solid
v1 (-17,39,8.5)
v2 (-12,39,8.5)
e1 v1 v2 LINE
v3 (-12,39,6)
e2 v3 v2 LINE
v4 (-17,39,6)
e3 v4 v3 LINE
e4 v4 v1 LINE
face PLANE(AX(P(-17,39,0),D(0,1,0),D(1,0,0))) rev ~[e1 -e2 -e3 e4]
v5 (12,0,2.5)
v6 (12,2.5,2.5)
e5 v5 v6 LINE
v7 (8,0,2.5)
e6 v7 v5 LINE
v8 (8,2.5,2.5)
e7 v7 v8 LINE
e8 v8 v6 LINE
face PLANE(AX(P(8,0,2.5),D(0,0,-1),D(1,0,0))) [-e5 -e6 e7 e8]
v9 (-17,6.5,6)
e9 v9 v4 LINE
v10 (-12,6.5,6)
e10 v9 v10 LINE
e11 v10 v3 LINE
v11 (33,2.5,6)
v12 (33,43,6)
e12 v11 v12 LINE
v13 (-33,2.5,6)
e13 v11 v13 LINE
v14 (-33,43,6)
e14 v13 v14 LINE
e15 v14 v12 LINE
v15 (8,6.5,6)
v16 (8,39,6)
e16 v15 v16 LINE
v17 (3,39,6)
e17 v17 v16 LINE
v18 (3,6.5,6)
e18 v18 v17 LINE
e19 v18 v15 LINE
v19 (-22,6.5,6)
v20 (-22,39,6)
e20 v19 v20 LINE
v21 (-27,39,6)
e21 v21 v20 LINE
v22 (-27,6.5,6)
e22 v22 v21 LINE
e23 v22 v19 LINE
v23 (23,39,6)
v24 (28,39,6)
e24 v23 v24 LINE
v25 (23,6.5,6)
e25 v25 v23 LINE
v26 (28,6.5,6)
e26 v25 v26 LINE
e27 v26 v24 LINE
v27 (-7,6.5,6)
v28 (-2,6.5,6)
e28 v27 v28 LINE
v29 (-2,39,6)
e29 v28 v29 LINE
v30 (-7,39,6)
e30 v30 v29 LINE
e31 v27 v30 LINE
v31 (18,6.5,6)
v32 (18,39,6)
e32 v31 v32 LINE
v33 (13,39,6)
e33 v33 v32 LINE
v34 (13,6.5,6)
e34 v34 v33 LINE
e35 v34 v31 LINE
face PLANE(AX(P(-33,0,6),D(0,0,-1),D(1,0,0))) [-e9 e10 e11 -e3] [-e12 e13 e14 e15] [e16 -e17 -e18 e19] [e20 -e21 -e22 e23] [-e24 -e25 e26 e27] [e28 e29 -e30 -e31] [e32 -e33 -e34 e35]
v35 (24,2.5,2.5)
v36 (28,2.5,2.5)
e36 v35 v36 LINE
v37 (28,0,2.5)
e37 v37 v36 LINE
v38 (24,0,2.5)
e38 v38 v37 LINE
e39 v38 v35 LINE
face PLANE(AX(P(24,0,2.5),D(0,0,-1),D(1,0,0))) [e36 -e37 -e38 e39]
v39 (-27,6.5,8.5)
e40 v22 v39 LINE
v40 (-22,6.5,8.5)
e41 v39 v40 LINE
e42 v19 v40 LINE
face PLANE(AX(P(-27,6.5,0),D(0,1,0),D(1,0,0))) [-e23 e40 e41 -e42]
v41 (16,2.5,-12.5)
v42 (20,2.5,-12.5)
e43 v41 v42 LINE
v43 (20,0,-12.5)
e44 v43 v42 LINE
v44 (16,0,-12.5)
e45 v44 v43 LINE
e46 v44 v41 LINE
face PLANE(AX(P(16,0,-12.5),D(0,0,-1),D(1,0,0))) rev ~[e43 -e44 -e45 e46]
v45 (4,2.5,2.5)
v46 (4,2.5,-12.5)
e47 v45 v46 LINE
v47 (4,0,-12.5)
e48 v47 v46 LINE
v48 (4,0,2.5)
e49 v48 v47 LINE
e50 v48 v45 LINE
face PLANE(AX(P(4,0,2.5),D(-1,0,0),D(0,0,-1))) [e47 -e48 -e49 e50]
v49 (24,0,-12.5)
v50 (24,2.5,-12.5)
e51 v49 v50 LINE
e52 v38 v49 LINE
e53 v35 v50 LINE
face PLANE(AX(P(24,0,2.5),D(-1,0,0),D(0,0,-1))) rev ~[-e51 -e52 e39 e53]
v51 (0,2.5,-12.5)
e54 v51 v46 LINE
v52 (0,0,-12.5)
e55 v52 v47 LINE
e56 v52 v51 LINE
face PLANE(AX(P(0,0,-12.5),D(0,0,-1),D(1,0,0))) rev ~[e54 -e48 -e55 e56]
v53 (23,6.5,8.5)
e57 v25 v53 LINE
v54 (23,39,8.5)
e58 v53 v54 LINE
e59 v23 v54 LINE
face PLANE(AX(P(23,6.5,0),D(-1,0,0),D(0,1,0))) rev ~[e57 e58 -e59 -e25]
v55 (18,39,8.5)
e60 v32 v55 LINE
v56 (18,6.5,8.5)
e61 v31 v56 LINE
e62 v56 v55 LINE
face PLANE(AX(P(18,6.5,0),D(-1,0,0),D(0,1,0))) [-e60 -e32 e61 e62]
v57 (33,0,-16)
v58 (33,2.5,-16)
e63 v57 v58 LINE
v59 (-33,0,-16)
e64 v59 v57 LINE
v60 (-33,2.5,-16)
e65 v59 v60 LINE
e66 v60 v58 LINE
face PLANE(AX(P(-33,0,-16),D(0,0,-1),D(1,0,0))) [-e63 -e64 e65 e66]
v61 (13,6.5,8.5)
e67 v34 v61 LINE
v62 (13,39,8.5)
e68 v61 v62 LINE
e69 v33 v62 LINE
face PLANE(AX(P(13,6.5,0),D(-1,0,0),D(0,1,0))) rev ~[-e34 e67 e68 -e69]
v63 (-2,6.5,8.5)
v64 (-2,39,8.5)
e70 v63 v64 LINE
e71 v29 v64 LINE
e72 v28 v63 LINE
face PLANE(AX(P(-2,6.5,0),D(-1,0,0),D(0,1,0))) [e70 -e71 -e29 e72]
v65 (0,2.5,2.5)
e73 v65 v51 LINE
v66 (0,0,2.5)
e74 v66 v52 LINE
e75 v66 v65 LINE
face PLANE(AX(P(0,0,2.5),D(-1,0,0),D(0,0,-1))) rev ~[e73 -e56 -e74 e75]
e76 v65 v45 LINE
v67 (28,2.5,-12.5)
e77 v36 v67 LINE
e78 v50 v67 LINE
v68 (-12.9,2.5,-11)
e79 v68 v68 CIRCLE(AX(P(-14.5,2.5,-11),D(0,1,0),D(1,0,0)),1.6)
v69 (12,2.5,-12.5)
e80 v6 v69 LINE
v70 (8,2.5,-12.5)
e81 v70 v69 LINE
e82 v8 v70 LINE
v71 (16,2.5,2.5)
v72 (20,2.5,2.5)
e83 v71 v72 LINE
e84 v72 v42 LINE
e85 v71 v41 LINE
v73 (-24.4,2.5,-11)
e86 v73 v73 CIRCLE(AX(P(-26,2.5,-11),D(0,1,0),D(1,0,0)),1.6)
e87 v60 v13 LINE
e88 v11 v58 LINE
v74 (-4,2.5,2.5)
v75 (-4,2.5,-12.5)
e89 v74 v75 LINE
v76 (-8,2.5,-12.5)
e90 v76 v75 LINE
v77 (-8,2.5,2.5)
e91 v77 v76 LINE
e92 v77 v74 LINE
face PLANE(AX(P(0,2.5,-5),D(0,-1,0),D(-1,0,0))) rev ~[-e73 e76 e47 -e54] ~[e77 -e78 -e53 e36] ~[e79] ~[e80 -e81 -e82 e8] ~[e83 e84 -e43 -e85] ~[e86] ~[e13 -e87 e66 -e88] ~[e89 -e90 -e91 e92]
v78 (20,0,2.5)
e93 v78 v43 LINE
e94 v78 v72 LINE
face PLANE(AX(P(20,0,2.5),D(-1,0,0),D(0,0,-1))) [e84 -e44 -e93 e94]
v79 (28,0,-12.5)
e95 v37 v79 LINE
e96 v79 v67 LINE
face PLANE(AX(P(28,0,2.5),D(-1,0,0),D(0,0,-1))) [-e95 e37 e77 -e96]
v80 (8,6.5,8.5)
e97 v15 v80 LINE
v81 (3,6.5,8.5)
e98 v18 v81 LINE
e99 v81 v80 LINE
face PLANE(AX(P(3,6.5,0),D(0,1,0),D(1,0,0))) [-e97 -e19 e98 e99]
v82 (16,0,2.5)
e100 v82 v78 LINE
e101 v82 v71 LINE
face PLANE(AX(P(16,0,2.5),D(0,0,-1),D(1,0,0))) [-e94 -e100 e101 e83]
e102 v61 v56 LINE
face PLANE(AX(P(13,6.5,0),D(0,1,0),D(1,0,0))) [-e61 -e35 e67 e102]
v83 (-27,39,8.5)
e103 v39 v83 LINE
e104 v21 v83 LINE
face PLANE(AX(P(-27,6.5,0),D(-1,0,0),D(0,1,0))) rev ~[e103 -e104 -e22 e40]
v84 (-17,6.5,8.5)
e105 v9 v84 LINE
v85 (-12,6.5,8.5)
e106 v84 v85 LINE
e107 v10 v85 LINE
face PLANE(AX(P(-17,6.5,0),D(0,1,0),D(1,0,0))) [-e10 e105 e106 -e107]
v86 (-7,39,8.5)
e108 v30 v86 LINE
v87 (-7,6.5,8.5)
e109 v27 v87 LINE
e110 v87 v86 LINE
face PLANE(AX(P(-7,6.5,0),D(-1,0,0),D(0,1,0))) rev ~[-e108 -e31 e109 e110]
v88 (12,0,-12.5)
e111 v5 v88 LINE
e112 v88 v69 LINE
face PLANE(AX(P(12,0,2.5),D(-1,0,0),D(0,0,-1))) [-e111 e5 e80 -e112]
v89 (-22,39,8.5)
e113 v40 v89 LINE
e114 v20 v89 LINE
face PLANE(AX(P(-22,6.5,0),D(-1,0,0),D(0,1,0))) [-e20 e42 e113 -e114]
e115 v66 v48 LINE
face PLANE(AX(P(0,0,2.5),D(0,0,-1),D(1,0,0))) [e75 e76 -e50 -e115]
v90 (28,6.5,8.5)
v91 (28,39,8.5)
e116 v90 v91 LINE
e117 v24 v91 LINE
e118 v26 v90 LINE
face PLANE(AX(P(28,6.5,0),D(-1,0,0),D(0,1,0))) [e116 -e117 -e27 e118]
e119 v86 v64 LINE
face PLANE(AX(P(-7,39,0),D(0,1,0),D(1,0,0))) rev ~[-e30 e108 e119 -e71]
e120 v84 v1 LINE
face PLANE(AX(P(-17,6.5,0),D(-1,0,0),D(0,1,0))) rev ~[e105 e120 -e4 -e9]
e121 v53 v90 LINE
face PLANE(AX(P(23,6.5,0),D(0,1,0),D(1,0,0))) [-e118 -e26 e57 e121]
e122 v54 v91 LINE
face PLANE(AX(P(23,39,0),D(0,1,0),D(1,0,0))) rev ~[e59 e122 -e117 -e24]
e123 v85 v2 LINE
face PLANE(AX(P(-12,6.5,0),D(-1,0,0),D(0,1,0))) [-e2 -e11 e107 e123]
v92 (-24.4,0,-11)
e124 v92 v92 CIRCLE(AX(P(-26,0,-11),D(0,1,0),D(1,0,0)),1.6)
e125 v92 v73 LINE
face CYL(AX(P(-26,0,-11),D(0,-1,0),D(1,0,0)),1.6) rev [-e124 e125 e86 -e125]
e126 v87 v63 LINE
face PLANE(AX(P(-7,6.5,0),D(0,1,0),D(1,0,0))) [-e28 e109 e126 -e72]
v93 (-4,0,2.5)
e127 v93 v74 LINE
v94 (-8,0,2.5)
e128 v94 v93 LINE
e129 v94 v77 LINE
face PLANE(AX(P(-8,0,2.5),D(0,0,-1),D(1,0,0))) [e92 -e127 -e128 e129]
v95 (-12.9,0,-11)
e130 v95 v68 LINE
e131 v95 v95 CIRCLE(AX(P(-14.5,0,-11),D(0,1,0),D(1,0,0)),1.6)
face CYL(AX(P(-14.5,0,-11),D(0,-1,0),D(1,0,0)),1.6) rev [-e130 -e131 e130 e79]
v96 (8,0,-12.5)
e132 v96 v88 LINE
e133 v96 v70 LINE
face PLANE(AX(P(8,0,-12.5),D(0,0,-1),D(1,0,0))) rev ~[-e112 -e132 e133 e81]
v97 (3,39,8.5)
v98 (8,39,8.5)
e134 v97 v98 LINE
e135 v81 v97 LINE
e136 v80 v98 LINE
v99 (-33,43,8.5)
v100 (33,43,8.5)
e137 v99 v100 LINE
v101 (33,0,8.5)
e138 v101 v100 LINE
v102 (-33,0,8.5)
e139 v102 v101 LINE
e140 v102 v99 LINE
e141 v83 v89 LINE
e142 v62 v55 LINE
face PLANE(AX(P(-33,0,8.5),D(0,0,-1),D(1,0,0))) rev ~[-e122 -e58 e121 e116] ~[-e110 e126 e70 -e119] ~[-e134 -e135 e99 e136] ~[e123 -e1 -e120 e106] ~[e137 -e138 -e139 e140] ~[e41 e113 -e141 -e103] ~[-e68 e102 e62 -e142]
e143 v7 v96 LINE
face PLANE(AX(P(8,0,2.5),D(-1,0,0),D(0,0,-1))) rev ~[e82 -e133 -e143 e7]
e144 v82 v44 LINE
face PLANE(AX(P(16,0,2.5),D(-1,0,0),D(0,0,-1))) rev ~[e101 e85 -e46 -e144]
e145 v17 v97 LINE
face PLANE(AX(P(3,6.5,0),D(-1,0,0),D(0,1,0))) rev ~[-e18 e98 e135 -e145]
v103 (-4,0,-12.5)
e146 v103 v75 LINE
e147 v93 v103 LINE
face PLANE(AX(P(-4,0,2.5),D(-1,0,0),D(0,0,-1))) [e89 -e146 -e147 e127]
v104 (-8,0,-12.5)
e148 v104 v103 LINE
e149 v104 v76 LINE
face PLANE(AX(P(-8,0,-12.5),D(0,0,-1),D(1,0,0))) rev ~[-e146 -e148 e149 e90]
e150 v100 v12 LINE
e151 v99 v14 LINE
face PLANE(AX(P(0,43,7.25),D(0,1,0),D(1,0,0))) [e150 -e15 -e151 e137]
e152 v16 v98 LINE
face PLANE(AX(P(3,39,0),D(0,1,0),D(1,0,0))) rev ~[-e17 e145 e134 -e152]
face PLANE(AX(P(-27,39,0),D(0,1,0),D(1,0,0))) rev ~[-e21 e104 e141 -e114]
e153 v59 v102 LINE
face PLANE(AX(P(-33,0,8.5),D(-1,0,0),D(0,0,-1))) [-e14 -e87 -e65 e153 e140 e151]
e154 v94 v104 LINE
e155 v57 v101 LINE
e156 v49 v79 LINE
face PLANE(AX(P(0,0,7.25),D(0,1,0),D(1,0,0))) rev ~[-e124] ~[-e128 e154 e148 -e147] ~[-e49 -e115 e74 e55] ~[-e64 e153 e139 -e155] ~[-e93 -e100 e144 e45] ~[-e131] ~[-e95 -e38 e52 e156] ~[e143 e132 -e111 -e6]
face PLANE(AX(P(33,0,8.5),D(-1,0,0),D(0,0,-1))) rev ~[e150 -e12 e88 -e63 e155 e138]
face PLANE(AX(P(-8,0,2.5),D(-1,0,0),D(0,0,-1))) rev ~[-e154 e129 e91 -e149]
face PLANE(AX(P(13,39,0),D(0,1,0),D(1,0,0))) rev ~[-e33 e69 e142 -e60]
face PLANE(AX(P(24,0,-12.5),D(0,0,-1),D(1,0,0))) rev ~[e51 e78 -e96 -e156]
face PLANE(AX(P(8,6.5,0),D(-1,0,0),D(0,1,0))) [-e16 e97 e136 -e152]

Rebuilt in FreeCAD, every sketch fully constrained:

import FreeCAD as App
import Part
import Sketcher
Q = App.Units.Quantity

doc = App.newDocument("Part")
params = doc.addObject("Spreadsheet::Sheet", "Params")
for row, (alias, value) in enumerate([
    ("sketch1_diameter", "3.2 mm"),
    ("sketch1_width", "66 mm"),
    ("sketch1_height", "22 mm"),
    ("pad1_length", "2.5 mm"),
    ("sketch2_width", "66 mm"),
    ("sketch2_height", "2.5 mm"),
    ("pad2_length", "43 mm"),
    ("sketch3_width", "5 mm"),
    ("sketch3_height", "32.5 mm"),
    ("linearpattern_pitch", "10 mm"),
    ("sketch4_width", "4 mm"),
    ("sketch4_height", "15 mm"),
    ("linearpattern2_pitch", "8 mm"),
], start=1):
    params.set(f"A{row}", alias)
    params.set(f"B{row}", "=" + value)
    params.setAlias(f"B{row}", alias)

body = doc.addObject("PartDesign::Body", "Body")

# Sketch on XZ plane
sketch1 = body.newObject("Sketcher::SketchObject", "Sketch")
sketch1.AttachmentSupport = (doc.getObject("XZ_Plane"), [""])
sketch1.MapMode = "FlatFace"
sketch1.addGeometry([
    Part.LineSegment(App.Vector(-33, -16, 0), App.Vector(-33, 6, 0)),  # 0
    Part.LineSegment(App.Vector(-33, 6, 0), App.Vector(33, 6, 0)),  # 1
    Part.LineSegment(App.Vector(33, 6, 0), App.Vector(33, -16, 0)),  # 2
    Part.LineSegment(App.Vector(33, -16, 0), App.Vector(-33, -16, 0)),  # 3
    Part.Circle(App.Vector(-14.5, -11, 0), App.Vector(0, 0, 1), 1.6),  # 4
    Part.Circle(App.Vector(-26, -11, 0), App.Vector(0, 0, 1), 1.6),  # 5
], False)
sketch1.addConstraint([
    Sketcher.Constraint("Coincident", 0, 2, 1, 1),
    Sketcher.Constraint("Coincident", 1, 2, 2, 1),
    Sketcher.Constraint("Coincident", 2, 2, 3, 1),
    Sketcher.Constraint("Coincident", 3, 2, 0, 1),
    Sketcher.Constraint("Vertical", 0),
    Sketcher.Constraint("Horizontal", 1),
    Sketcher.Constraint("Vertical", 2),
    Sketcher.Constraint("Horizontal", 3),
    Sketcher.Constraint("Equal", 4, 5),
    Sketcher.Constraint("Horizontal", 4, 3, 5, 3),
    Sketcher.Constraint("Diameter", 4, Q("3.2 mm")),
    Sketcher.Constraint("DistanceX", 1, 1, 1, 2, Q("66 mm")),
    Sketcher.Constraint("DistanceY", 0, 1, 0, 2, Q("22 mm")),
    Sketcher.Constraint("DistanceY", 4, 3, -1, 1, Q("11 mm")),
    Sketcher.Constraint("DistanceX", 5, 3, -1, 1, Q("26 mm")),
    Sketcher.Constraint("DistanceX", 0, 2, -1, 1, Q("33 mm")),
    Sketcher.Constraint("DistanceY", -1, 1, 0, 2, Q("6 mm")),
    Sketcher.Constraint("DistanceX", 4, 3, -1, 1, Q("14.5 mm")),
])
sketch1.setExpression("Constraints[10]", "Params.sketch1_diameter")
sketch1.setExpression("Constraints[11]", "Params.sketch1_width")
sketch1.setExpression("Constraints[12]", "Params.sketch1_height")
pad1 = body.newObject("PartDesign::Pad", "Pad")
pad1.Profile = sketch1
pad1.setExpression("Length", "Params.pad1_length")
pad1.Reversed = True

# Sketch on XZ plane
sketch2 = body.newObject("Sketcher::SketchObject", "Sketch001")
sketch2.AttachmentSupport = (doc.getObject("XZ_Plane"), [""])
sketch2.MapMode = "FlatFace"
sketch2.addGeometry([
    Part.LineSegment(App.Vector(-33, 6, 0), App.Vector(-33, 8.5, 0)),
    Part.LineSegment(App.Vector(-33, 8.5, 0), App.Vector(33, 8.5, 0)),
    Part.LineSegment(App.Vector(33, 8.5, 0), App.Vector(33, 6, 0)),
    Part.LineSegment(App.Vector(33, 6, 0), App.Vector(-33, 6, 0)),
], False)
sketch2.addConstraint([
    Sketcher.Constraint("Coincident", 0, 2, 1, 1),
    Sketcher.Constraint("Coincident", 1, 2, 2, 1),
    Sketcher.Constraint("Coincident", 2, 2, 3, 1),
    Sketcher.Constraint("Coincident", 3, 2, 0, 1),
    Sketcher.Constraint("Vertical", 0),
    Sketcher.Constraint("Horizontal", 1),
    Sketcher.Constraint("Vertical", 2),
    Sketcher.Constraint("Horizontal", 3),
    Sketcher.Constraint("DistanceX", 1, 1, 1, 2, Q("66 mm")),
    Sketcher.Constraint("DistanceY", 0, 1, 0, 2, Q("2.5 mm")),
    Sketcher.Constraint("DistanceX", 0, 2, -1, 1, Q("33 mm")),
    Sketcher.Constraint("DistanceY", -1, 1, 2, 2, Q("6 mm")),
])
sketch2.setExpression("Constraints[8]", "Params.sketch2_width")
sketch2.setExpression("Constraints[9]", "Params.sketch2_height")
pad2 = body.newObject("PartDesign::Pad", "Pad001")
pad2.Profile = sketch2
pad2.setExpression("Length", "Params.pad2_length")
pad2.Reversed = True

# Sketch on XY plane
sketch3 = body.newObject("Sketcher::SketchObject", "Sketch002")
sketch3.AttachmentSupport = (doc.getObject("XY_Plane"), [""])
sketch3.MapMode = "FlatFace"
sketch3.addGeometry([
    Part.LineSegment(App.Vector(23, 39, 0), App.Vector(23, 6, 0)),
    Part.LineSegment(App.Vector(23, 6, 0), App.Vector(28, 6, 0)),
    Part.LineSegment(App.Vector(28, 6, 0), App.Vector(28, 39, 0)),
    Part.LineSegment(App.Vector(28, 39, 0), App.Vector(23, 39, 0)),
], False)
sketch3.addConstraint([
    Sketcher.Constraint("Coincident", 0, 2, 1, 1),
    Sketcher.Constraint("Coincident", 1, 2, 2, 1),
    Sketcher.Constraint("Coincident", 2, 2, 3, 1),
    Sketcher.Constraint("Coincident", 3, 2, 0, 1),
    Sketcher.Constraint("Vertical", 0),
    Sketcher.Constraint("Horizontal", 1),
    Sketcher.Constraint("Vertical", 2),
    Sketcher.Constraint("Horizontal", 3),
    Sketcher.Constraint("DistanceX", 1, 1, 1, 2, Q("5 mm")),
    Sketcher.Constraint("DistanceY", 0, 2, 0, 1, Q("32.5 mm")),
    Sketcher.Constraint("DistanceX", -1, 1, 0, 2, Q("23 mm")),
    Sketcher.Constraint("DistanceY", -1, 1, 2, 2, Q("39 mm")),
])
sketch3.setExpression("Constraints[8]", "Params.sketch3_width")
sketch3.setExpression("Constraints[9]", "Params.sketch3_height")
pocket1 = body.newObject("PartDesign::Pocket", "Pocket")
pocket1.Profile = sketch3
pocket1.Type = "ThroughAll"
pocket1.Reversed = True
doc.recompute()

linearpattern = body.newObject("PartDesign::LinearPattern", "LinearPattern")
linearpattern.Originals = [pocket1]
linearpattern.Direction = (doc.getObject("X_Axis"), [""])
linearpattern.Mode = "offset"
linearpattern.setExpression("Offset", "Params.linearpattern_pitch")
linearpattern.Occurrences = 6
linearpattern.Reversed = True
body.Tip = linearpattern

# Sketch on XZ plane
sketch4 = body.newObject("Sketcher::SketchObject", "Sketch003")
sketch4.AttachmentSupport = (doc.getObject("XZ_Plane"), [""])
sketch4.MapMode = "FlatFace"
sketch4.addGeometry([
    Part.LineSegment(App.Vector(24, -12.5, 0), App.Vector(24, 2.5, 0)),
    Part.LineSegment(App.Vector(24, 2.5, 0), App.Vector(28, 2.5, 0)),
    Part.LineSegment(App.Vector(28, 2.5, 0), App.Vector(28, -12.5, 0)),
    Part.LineSegment(App.Vector(28, -12.5, 0), App.Vector(24, -12.5, 0)),
], False)
sketch4.addConstraint([
    Sketcher.Constraint("Coincident", 0, 2, 1, 1),
    Sketcher.Constraint("Coincident", 1, 2, 2, 1),
    Sketcher.Constraint("Coincident", 2, 2, 3, 1),
    Sketcher.Constraint("Coincident", 3, 2, 0, 1),
    Sketcher.Constraint("Vertical", 0),
    Sketcher.Constraint("Horizontal", 1),
    Sketcher.Constraint("Vertical", 2),
    Sketcher.Constraint("Horizontal", 3),
    Sketcher.Constraint("DistanceX", 1, 1, 1, 2, Q("4 mm")),
    Sketcher.Constraint("DistanceY", 0, 1, 0, 2, Q("15 mm")),
    Sketcher.Constraint("DistanceX", -1, 1, 0, 2, Q("24 mm")),
    Sketcher.Constraint("DistanceY", -1, 1, 0, 2, Q("2.5 mm")),
])
sketch4.setExpression("Constraints[8]", "Params.sketch4_width")
sketch4.setExpression("Constraints[9]", "Params.sketch4_height")
pocket2 = body.newObject("PartDesign::Pocket", "Pocket001")
pocket2.Profile = sketch4
pocket2.Type = "ThroughAll"
doc.recompute()

linearpattern2 = body.newObject("PartDesign::LinearPattern", "LinearPattern001")
linearpattern2.Originals = [pocket2]
linearpattern2.Direction = (doc.getObject("X_Axis"), [""])
linearpattern2.Mode = "offset"
linearpattern2.setExpression("Offset", "Params.linearpattern2_pitch")
linearpattern2.Occurrences = 5
linearpattern2.Reversed = True
body.Tip = linearpattern2

doc.recompute()
